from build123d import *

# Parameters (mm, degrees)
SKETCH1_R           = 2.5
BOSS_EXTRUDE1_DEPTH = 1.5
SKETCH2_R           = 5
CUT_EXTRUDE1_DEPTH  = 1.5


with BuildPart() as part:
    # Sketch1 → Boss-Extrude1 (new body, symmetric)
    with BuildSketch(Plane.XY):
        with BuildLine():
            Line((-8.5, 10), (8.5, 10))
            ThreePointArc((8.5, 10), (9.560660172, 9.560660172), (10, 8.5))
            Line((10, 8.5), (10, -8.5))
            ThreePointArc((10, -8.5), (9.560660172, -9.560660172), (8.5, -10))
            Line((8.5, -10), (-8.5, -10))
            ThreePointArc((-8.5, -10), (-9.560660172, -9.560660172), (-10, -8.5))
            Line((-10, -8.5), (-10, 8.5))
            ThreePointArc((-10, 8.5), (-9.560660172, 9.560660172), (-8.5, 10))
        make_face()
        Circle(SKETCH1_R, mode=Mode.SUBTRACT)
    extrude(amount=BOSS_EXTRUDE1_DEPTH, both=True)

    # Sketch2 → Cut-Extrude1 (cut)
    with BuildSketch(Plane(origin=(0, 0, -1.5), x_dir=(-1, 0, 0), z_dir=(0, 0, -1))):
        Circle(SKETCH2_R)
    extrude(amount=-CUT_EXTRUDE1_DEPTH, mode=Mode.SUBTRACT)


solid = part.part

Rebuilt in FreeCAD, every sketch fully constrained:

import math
import FreeCAD as App
import Part
import Sketcher
Q = App.Units.Quantity

doc = App.newDocument("Part")
params = doc.addObject("Spreadsheet::Sheet", "Params")
for row, (alias, value) in enumerate([
    ("sketch1_diameter", "5 mm"),
    ("sketch1_radius", "1.5 mm"),
    ("sketch1_width", "17 mm"),
    ("pad1_length", "3 mm"),
    ("sketch2_diameter", "10 mm"),
    ("pocket1_length", "1.5 mm"),
], start=1):
    params.set(f"A{row}", alias)
    params.set(f"B{row}", "=" + value)
    params.setAlias(f"B{row}", alias)

body = doc.addObject("PartDesign::Body", "Body")

sketch1 = body.newObject("Sketcher::SketchObject", "Sketch")
sketch1.AttachmentSupport = (doc.getObject("XY_Plane"), [""])
sketch1.MapMode = "FlatFace"
sketch1.addGeometry([
    Part.LineSegment(App.Vector(8.5, 10, 0), App.Vector(-8.5, 10, 0)),
    Part.ArcOfCircle(Part.Circle(App.Vector(-8.5, 8.5, 0), App.Vector(0, 0, 1), 1.5), math.radians(90), math.radians(180)),
    Part.LineSegment(App.Vector(-10, 8.5, 0), App.Vector(-10, -8.5, 0)),
    Part.ArcOfCircle(Part.Circle(App.Vector(-8.5, -8.5, 0), App.Vector(0, 0, 1), 1.5), math.radians(180), math.radians(270)),
    Part.LineSegment(App.Vector(-8.5, -10, 0), App.Vector(8.5, -10, 0)),
    Part.ArcOfCircle(Part.Circle(App.Vector(8.5, -8.5, 0), App.Vector(0, 0, 1), 1.5), math.radians(-90), math.radians(0)),
    Part.LineSegment(App.Vector(10, -8.5, 0), App.Vector(10, 8.5, 0)),
    Part.ArcOfCircle(Part.Circle(App.Vector(8.5, 8.5, 0), App.Vector(0, 0, 1), 1.5), math.radians(0), math.radians(90)),
    Part.Circle(App.Vector(0, 0, 0), App.Vector(0, 0, 1), 2.5),
], False)
sketch1.addConstraint([
    Sketcher.Constraint("Tangent", 0, 2, 1, 1),
    Sketcher.Constraint("Tangent", 1, 2, 2, 1),
    Sketcher.Constraint("Tangent", 2, 2, 3, 1),
    Sketcher.Constraint("Tangent", 3, 2, 4, 1),
    Sketcher.Constraint("Tangent", 4, 2, 5, 1),
    Sketcher.Constraint("Tangent", 5, 2, 6, 1),
    Sketcher.Constraint("Tangent", 6, 2, 7, 1),
    Sketcher.Constraint("Tangent", 7, 2, 0, 1),
    Sketcher.Constraint("Horizontal", 0),
    Sketcher.Constraint("Vertical", 2),
    Sketcher.Constraint("Horizontal", 4),
    Sketcher.Constraint("Vertical", 6),
    Sketcher.Constraint("Coincident", 8, 3, -1, 1),
    Sketcher.Constraint("Equal", 1, 3),
    Sketcher.Constraint("Equal", 3, 5),
    Sketcher.Constraint("Equal", 5, 7),
    Sketcher.Constraint("Symmetric", 1, 3, 5, 3, -1, 1),
    Sketcher.Constraint("Equal", 4, 2),
    Sketcher.Constraint("Diameter", 8, Q("5 mm")),
    Sketcher.Constraint("Radius", 1, Q("1.5 mm")),
    Sketcher.Constraint("DistanceX", 0, 2, 0, 1, Q("17 mm")),
])
sketch1.setExpression("Constraints[18]", "Params.sketch1_diameter")
sketch1.setExpression("Constraints[19]", "Params.sketch1_radius")
sketch1.setExpression("Constraints[20]", "Params.sketch1_width")
pad1 = body.newObject("PartDesign::Pad", "Pad")
pad1.Profile = sketch1
pad1.setExpression("Length", "Params.pad1_length")
pad1.Midplane = True

sketch2 = body.newObject("Sketcher::SketchObject", "Sketch001")
sketch2.AttachmentSupport = (doc.getObject("XY_Plane"), [""])
sketch2.MapMode = "FlatFace"
sketch2.AttachmentOffset = App.Placement(App.Vector(0, 0, -1.5), App.Rotation())
sketch2.addGeometry(Part.Circle(App.Vector(0, 0, 0), App.Vector(0, 0, 1), 5), False)
sketch2.addConstraint([
    Sketcher.Constraint("Coincident", 0, 3, -1, 1),
    Sketcher.Constraint("Diameter", 0, Q("10 mm")),
])
sketch2.setExpression("Constraints[1]", "Params.sketch2_diameter")
pocket1 = body.newObject("PartDesign::Pocket", "Pocket")
pocket1.Profile = sketch2
pocket1.setExpression("Length", "Params.pocket1_length")
pocket1.Reversed = True

doc.recompute()
